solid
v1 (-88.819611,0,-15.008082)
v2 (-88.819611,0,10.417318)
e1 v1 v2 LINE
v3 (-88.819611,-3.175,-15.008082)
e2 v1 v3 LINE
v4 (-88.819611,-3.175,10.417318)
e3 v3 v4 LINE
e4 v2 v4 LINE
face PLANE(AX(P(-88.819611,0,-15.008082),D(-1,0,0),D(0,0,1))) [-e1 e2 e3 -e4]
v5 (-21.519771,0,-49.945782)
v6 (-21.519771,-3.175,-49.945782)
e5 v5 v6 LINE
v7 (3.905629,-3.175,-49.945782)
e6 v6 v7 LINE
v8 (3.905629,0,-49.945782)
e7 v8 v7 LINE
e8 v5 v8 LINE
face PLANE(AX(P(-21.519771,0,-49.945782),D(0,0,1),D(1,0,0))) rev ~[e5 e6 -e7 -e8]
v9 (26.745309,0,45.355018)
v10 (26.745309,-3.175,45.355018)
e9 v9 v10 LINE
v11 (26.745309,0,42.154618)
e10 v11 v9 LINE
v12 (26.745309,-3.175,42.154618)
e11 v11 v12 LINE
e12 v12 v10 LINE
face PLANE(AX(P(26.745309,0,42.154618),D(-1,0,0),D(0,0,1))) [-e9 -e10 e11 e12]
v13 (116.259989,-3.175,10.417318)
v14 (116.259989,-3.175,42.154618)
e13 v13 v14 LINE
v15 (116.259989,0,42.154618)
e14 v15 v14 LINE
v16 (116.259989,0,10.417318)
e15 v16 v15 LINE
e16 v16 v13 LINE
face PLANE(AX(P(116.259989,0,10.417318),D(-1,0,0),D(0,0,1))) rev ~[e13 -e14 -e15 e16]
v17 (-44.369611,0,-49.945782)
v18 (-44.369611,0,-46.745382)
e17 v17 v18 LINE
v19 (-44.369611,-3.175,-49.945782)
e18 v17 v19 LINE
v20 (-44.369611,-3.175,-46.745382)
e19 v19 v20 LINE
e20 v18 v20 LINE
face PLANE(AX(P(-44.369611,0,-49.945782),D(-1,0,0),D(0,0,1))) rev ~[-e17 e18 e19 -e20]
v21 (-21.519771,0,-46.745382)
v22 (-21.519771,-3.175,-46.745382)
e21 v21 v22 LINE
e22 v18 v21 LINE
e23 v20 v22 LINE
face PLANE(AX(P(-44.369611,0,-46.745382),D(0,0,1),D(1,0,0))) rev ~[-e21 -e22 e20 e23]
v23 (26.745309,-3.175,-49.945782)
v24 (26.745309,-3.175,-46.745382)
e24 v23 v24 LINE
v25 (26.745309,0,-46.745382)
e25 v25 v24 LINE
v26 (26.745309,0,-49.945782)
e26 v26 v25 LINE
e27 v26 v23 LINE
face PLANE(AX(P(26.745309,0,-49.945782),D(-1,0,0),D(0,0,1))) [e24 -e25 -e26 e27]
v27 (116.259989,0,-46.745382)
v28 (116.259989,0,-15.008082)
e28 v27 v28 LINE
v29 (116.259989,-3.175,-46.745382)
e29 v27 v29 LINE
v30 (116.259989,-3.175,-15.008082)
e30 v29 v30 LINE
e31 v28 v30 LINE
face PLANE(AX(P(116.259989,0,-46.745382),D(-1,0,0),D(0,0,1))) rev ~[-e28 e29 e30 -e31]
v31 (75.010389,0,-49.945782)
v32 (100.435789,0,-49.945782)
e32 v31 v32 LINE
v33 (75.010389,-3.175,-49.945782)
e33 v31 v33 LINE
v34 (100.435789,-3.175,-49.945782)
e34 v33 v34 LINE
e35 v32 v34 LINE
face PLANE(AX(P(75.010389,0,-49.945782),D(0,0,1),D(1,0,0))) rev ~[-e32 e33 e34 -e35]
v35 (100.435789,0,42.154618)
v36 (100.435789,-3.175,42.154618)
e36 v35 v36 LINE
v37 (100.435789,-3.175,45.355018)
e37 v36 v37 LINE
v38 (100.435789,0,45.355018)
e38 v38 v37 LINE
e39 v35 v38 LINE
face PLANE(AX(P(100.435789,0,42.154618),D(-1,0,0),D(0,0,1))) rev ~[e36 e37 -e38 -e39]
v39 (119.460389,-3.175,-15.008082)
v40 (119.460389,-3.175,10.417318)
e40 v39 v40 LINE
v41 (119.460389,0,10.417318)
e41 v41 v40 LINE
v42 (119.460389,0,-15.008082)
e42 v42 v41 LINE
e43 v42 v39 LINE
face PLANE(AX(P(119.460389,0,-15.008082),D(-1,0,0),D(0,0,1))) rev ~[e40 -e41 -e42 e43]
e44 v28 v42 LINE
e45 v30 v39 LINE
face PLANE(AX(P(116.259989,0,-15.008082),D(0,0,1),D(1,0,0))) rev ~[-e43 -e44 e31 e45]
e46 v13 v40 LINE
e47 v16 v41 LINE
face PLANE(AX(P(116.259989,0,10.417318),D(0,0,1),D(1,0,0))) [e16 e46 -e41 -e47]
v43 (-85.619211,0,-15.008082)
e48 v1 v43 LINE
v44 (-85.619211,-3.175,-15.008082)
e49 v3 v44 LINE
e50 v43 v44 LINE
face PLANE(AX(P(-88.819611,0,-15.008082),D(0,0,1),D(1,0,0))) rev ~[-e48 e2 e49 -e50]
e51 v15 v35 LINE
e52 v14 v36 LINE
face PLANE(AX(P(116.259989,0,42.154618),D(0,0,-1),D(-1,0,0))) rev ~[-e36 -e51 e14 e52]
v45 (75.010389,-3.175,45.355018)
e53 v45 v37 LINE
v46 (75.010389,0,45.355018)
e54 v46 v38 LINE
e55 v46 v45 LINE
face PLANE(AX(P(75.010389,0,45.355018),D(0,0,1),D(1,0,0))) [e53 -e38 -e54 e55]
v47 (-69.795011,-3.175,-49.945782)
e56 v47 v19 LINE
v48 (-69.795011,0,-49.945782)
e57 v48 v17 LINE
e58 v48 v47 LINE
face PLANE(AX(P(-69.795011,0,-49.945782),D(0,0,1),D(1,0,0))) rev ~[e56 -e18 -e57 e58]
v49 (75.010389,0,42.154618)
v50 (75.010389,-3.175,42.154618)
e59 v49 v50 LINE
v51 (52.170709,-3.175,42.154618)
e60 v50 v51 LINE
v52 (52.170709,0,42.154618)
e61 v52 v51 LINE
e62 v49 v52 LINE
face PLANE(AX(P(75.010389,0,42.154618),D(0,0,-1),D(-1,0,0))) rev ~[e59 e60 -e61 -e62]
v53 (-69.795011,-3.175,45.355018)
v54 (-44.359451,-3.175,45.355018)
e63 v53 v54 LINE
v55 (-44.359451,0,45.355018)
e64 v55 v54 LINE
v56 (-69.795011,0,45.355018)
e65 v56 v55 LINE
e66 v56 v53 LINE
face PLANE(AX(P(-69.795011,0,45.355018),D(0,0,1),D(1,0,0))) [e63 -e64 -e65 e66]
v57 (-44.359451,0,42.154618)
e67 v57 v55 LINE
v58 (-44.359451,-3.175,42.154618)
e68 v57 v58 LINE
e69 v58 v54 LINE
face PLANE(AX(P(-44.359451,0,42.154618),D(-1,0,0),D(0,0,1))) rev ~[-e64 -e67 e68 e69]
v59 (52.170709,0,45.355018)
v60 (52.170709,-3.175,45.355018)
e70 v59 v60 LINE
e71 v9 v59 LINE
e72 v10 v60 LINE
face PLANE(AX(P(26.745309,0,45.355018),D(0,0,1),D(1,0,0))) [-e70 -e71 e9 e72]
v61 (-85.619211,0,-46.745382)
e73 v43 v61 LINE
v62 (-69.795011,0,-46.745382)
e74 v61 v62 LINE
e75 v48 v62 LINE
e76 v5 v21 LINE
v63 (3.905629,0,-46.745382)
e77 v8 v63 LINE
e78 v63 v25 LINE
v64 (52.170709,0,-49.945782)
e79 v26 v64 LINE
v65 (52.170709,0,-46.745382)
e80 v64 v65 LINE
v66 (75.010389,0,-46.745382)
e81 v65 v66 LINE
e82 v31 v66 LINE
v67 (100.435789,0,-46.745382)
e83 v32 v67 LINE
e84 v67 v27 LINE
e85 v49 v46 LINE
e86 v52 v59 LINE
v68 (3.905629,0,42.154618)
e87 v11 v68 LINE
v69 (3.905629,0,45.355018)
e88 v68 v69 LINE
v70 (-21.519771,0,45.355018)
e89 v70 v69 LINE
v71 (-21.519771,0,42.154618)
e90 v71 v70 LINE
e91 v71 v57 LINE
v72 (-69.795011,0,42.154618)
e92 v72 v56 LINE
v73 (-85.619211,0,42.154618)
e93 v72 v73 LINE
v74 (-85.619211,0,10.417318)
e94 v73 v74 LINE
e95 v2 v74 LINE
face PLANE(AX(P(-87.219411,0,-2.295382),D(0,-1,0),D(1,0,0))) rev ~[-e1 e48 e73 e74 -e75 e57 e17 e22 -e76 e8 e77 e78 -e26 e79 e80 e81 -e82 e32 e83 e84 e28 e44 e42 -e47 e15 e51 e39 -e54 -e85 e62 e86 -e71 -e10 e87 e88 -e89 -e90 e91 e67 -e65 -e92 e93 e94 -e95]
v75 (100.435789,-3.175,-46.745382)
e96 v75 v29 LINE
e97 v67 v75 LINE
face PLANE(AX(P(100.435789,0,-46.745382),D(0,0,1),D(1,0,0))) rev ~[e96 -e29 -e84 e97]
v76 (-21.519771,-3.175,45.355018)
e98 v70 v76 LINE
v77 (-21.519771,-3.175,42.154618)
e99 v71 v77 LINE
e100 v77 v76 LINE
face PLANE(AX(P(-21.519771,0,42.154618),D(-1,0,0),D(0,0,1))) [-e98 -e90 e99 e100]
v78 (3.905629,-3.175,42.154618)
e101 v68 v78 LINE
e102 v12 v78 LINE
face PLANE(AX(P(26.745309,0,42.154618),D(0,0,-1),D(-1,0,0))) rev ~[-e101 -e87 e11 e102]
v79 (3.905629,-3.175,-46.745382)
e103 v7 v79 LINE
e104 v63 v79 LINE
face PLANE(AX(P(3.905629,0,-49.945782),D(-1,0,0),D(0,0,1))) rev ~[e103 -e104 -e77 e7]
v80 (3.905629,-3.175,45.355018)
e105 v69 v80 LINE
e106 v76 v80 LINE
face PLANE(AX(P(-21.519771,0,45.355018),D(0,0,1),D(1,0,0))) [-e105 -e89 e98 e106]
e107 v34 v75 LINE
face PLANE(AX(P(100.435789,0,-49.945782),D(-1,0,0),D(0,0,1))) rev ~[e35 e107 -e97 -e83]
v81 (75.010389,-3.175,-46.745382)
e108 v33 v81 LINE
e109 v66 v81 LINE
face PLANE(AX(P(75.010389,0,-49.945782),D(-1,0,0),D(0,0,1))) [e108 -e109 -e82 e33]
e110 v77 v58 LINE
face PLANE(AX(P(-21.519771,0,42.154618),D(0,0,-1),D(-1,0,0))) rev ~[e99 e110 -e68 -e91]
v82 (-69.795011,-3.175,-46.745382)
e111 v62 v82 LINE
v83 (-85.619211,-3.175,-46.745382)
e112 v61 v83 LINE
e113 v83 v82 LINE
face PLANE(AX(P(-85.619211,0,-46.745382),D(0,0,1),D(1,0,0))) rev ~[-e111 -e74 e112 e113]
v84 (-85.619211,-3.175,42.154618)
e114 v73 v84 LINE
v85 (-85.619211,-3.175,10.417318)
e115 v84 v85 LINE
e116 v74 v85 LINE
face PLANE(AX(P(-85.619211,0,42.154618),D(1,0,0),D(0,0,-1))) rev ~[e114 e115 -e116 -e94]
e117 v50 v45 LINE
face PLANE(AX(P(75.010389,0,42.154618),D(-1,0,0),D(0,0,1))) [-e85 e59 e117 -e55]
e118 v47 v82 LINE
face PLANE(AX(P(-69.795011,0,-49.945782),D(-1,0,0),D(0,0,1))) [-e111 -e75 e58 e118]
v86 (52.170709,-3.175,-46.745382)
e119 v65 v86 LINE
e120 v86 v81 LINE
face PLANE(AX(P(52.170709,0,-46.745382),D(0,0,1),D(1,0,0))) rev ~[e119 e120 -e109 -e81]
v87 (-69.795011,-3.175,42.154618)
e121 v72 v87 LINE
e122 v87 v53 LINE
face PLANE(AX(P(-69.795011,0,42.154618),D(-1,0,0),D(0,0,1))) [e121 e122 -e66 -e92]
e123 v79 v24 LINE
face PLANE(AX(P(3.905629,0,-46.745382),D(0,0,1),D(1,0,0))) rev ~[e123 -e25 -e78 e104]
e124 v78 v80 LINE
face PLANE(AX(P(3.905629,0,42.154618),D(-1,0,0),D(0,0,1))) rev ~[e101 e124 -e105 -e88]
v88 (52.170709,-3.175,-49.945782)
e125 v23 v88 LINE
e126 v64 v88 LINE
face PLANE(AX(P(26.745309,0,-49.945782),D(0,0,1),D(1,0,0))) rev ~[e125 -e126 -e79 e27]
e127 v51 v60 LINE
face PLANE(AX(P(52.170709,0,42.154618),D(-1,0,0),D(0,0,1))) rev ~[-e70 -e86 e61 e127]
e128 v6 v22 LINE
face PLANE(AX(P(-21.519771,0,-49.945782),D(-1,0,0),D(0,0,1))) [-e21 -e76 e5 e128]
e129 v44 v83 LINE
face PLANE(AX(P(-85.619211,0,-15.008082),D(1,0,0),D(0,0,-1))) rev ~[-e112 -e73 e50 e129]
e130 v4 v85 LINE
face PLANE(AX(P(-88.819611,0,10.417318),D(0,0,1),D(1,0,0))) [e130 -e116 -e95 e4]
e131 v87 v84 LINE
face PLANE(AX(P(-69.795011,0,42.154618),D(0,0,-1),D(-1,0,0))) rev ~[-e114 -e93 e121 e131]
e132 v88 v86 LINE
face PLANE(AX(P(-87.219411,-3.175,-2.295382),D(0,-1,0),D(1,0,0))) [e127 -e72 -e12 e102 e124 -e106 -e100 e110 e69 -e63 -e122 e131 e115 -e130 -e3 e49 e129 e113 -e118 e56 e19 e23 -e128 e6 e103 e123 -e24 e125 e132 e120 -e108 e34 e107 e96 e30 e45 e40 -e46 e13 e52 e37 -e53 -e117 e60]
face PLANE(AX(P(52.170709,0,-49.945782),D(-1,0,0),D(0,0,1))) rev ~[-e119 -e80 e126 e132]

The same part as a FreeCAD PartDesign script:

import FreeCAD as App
import Part
import Sketcher
Q = App.Units.Quantity


def add_polygon(sketch, points):
    """Adds a closed chain of lines whose ends are joined by coincident constraints."""
    first, n = sketch.GeometryCount, len(points)
    for a, b in zip(points, points[1:] + points[:1]):
        sketch.addGeometry(Part.LineSegment(App.Vector(*a, 0), App.Vector(*b, 0)), False)
    for i in range(n):
        sketch.addConstraint(Sketcher.Constraint("Coincident", first + i, 2, first + (i + 1) % n, 1))

doc = App.newDocument("Part")
body = doc.addObject("PartDesign::Body", "Body")

# Sketch on XZ plane
sketch1 = body.newObject("Sketcher::SketchObject", "Sketch")
sketch1.AttachmentSupport = (doc.getObject("XZ_Plane"), [""])
sketch1.MapMode = "FlatFace"
add_polygon(sketch1, [(-88.8, 10.4), (-88.8, -15), (-85.6, -15), (-85.6, -46.7), (-69.8, -46.7), (-69.8, -49.9), (-44.4, -49.9), (-44.4, -46.7), (-21.5, -46.7), (-21.5, -49.9), (3.9, -49.9), (3.9, -46.7), (26.7, -46.7), (26.7, -49.9), (52.2, -49.9), (52.2, -46.7), (75, -46.7), (75, -49.9), (100.4, -49.9), (100.4, -46.7), (116.3, -46.7), (116.3, -15), (119.5, -15), (119.5, 10.4), (116.3, 10.4), (116.3, 42.2), (100.4, 42.2), (100.4, 45.4), (75, 45.4), (75, 42.2), (52.2, 42.2), (52.2, 45.4), (26.7, 45.4), (26.7, 42.2), (3.9, 42.2), (3.9, 45.4), (-21.5, 45.4), (-21.5, 42.2), (-44.4, 42.2), (-44.4, 45.4), (-69.8, 45.4), (-69.8, 42.2), (-85.6, 42.2), (-85.6, 10.4)])  # lines 0-43
sketch1.addConstraint([
    Sketcher.Constraint("Vertical", 0),
    Sketcher.Constraint("Horizontal", 1),
    Sketcher.Constraint("Vertical", 2),
    Sketcher.Constraint("Horizontal", 3),
    Sketcher.Constraint("Vertical", 4),
    Sketcher.Constraint("Horizontal", 5),
    Sketcher.Constraint("Vertical", 6),
    Sketcher.Constraint("Horizontal", 7),
    Sketcher.Constraint("Vertical", 8),
    Sketcher.Constraint("Horizontal", 9),
    Sketcher.Constraint("Vertical", 10),
    Sketcher.Constraint("Horizontal", 11),
    Sketcher.Constraint("Vertical", 12),
    Sketcher.Constraint("Horizontal", 13),
    Sketcher.Constraint("Vertical", 14),
    Sketcher.Constraint("Horizontal", 15),
    Sketcher.Constraint("Vertical", 16),
    Sketcher.Constraint("Horizontal", 17),
    Sketcher.Constraint("Vertical", 18),
    Sketcher.Constraint("Horizontal", 19),
    Sketcher.Constraint("Vertical", 20),
    Sketcher.Constraint("Horizontal", 21),
    Sketcher.Constraint("Vertical", 22),
    Sketcher.Constraint("Horizontal", 23),
    Sketcher.Constraint("Vertical", 24),
    Sketcher.Constraint("Horizontal", 25),
    Sketcher.Constraint("Vertical", 26),
    Sketcher.Constraint("Horizontal", 27),
    Sketcher.Constraint("Vertical", 28),
    Sketcher.Constraint("Horizontal", 29),
    Sketcher.Constraint("Vertical", 30),
    Sketcher.Constraint("Horizontal", 31),
    Sketcher.Constraint("Vertical", 32),
    Sketcher.Constraint("Horizontal", 33),
    Sketcher.Constraint("Vertical", 34),
    Sketcher.Constraint("Horizontal", 35),
    Sketcher.Constraint("Vertical", 36),
    Sketcher.Constraint("Horizontal", 37),
    Sketcher.Constraint("Vertical", 38),
    Sketcher.Constraint("Horizontal", 39),
    Sketcher.Constraint("Vertical", 40),
    Sketcher.Constraint("Horizontal", 41),
    Sketcher.Constraint("Vertical", 42),
    Sketcher.Constraint("Horizontal", 43),
    Sketcher.Constraint("Horizontal", 3, 2, 6, 2),
    Sketcher.Constraint("Horizontal", 5, 2, 8, 2),
    Sketcher.Constraint("Horizontal", 7, 2, 10, 2),
    Sketcher.Constraint("Horizontal", 9, 2, 12, 2),
    Sketcher.Constraint("Horizontal", 11, 2, 14, 2),
    Sketcher.Constraint("Horizontal", 13, 2, 16, 2),
    Sketcher.Constraint("Horizontal", 15, 2, 18, 2),
    Sketcher.Constraint("Horizontal", 1, 2, 20, 2),
    Sketcher.Constraint("Horizontal", 25, 2, 28, 2),
    Sketcher.Constraint("Horizontal", 27, 2, 30, 2),
    Sketcher.Constraint("Horizontal", 29, 2, 32, 2),
    Sketcher.Constraint("Horizontal", 31, 2, 34, 2),
    Sketcher.Constraint("Horizontal", 33, 2, 36, 2),
    Sketcher.Constraint("Horizontal", 35, 2, 38, 2),
    Sketcher.Constraint("Horizontal", 37, 2, 40, 2),
    Sketcher.Constraint("Horizontal", 23, 2, 42, 2),
    Sketcher.Constraint("Vertical", 20, 2, 23, 2),
    Sketcher.Constraint("Vertical", 18, 2, 25, 2),
    Sketcher.Constraint("Vertical", 16, 2, 27, 2),
    Sketcher.Constraint("Vertical", 14, 2, 29, 2),
    Sketcher.Constraint("Vertical", 12, 2, 31, 2),
    Sketcher.Constraint("Vertical", 10, 2, 33, 2),
    Sketcher.Constraint("Vertical", 8, 2, 35, 2),
    Sketcher.Constraint("Vertical", 4, 2, 39, 2),
    Sketcher.Constraint("Vertical", 2, 2, 41, 2),
    Sketcher.Constraint("Equal", 5, 9),
    Sketcher.Constraint("Equal", 9, 13),
    Sketcher.Constraint("Equal", 11, 15),
    Sketcher.Constraint("Equal", 13, 17),
    Sketcher.Constraint("Equal", 3, 19),
    Sketcher.Constraint("Equal", 1, 21),
    Sketcher.Constraint("Equal", 33, 37),
    Sketcher.Constraint("Equal", 35, 0),
    Sketcher.Constraint("Equal", 43, 4),
    Sketcher.Constraint("Equal", 20, 24),
    Sketcher.Constraint("Equal", 18, 26),
    Sketcher.Constraint("DistanceY", 19, 2, 24, 2, Q("3.5 in")),
    Sketcher.Constraint("DistanceX", 1, 1, 1, 2, Q("0.126 in")),
    Sketcher.Constraint("DistanceX", 3, 1, 3, 2, Q("0.623 in")),
    Sketcher.Constraint("DistanceX", 5, 1, 5, 2, Q("1.001 in")),
    Sketcher.Constraint("DistanceX", 7, 1, 7, 2, Q("0.8996 in")),
    Sketcher.Constraint("DistanceX", 11, 1, 11, 2, Q("0.8992 in")),
    Sketcher.Constraint("DistanceX", 0, 2, -1, 1, Q("88.819611 mm")),
    Sketcher.Constraint("DistanceY", 0, 2, -1, 1, Q("15.008082 mm")),
])
pad1 = body.newObject("PartDesign::Pad", "Pad")
pad1.Profile = sketch1
pad1.Length = Q("0.125 in")

doc.recompute()
